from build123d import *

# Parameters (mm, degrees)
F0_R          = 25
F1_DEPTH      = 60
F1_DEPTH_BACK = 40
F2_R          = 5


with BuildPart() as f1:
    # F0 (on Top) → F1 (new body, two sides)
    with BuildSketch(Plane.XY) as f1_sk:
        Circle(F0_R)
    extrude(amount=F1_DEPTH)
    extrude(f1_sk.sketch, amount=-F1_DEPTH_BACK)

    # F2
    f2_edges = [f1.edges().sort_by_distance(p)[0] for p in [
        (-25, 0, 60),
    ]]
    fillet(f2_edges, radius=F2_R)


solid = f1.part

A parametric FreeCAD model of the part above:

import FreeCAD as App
import Part
import Sketcher
Q = App.Units.Quantity


def edges_at(feature, points):
    """Names of the edges that pass closest to the given points."""
    edges = feature.Shape.Edges
    near = lambda p: min(range(len(edges)), key=lambda i: edges[i].distToShape(Part.Vertex(*p))[0])
    return sorted({f"Edge{near(p) + 1}" for p in points})

doc = App.newDocument("Part")
body = doc.addObject("PartDesign::Body", "Body")

# Sketch on XY plane
sketch1 = doc.addObject("Sketcher::SketchObject", "Sketch")
body.addObject(sketch1)
sketch1.AttachmentSupport = (doc.XY_Plane, [""])
sketch1.MapMode = "FlatFace"
sketch1.addGeometry(Part.Circle(App.Vector(0, 0, 0), App.Vector(0, 0, 1), 25), False)
sketch1.addConstraint([
    Sketcher.Constraint("Coincident", 0, 3, -1, 1),
    Sketcher.Constraint("Diameter", 0, Q("50 mm")),
])
pad1 = doc.addObject("PartDesign::Pad", "Pad")
body.addObject(pad1)
pad1.Profile = sketch1
pad1.Type = "TwoLengths"
pad1.Length = 60
pad1.Length2 = 40
doc.recompute()

fillet = doc.addObject("PartDesign::Fillet", "Fillet")
body.addObject(fillet)
fillet.Base = (pad1, edges_at(pad1, [(-25, 0, 60)]))
fillet.Radius = 5

doc.recompute()
